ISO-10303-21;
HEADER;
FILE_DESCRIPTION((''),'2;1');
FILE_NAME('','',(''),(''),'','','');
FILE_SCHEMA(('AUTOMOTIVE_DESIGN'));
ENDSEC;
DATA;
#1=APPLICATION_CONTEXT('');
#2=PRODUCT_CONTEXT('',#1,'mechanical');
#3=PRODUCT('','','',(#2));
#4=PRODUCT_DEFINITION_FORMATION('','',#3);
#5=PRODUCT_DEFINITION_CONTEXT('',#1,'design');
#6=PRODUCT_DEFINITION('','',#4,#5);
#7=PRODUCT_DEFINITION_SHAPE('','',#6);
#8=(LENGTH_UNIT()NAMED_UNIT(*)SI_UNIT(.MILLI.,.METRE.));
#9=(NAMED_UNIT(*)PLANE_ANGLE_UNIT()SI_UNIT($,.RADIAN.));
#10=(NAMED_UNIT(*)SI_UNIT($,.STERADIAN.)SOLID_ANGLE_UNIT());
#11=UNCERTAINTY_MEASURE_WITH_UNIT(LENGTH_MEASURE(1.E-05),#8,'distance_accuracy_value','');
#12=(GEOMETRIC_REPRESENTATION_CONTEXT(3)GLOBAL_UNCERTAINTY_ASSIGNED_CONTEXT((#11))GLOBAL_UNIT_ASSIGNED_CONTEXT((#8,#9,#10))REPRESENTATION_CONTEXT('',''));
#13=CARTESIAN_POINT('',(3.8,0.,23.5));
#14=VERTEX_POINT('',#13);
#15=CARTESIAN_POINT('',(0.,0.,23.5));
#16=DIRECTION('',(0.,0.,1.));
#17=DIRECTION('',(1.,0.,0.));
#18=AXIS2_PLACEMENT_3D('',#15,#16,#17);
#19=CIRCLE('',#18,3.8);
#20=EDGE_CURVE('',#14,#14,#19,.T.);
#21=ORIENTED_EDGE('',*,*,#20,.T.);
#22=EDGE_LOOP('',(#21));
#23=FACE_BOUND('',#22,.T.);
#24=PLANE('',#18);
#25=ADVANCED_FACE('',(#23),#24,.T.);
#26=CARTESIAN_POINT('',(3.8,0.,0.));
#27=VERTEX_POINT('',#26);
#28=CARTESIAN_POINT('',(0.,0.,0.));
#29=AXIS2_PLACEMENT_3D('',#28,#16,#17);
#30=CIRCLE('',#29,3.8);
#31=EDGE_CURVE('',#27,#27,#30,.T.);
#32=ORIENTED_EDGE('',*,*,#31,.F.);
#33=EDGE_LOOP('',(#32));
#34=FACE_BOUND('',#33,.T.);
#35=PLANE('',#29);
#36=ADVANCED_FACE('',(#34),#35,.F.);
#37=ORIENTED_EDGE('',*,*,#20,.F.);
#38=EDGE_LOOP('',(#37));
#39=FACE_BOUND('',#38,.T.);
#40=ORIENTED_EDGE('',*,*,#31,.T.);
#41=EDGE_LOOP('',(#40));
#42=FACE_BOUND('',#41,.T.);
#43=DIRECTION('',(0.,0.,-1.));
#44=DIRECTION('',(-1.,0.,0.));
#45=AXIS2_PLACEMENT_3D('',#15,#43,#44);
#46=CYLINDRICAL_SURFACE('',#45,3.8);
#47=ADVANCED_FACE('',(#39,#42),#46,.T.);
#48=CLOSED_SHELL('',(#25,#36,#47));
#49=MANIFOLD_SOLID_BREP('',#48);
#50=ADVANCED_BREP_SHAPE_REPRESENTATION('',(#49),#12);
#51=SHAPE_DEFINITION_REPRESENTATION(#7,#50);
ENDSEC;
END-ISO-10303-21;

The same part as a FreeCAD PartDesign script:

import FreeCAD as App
import Part
import Sketcher

doc = App.newDocument("Part")
body = doc.addObject("PartDesign::Body", "Body")

# Sketch on XY plane
sketch1 = doc.addObject("Sketcher::SketchObject", "Sketch")
body.addObject(sketch1)
sketch1.AttachmentSupport = (doc.XY_Plane, [""])
sketch1.MapMode = "FlatFace"
sketch1.addGeometry(Part.Circle(App.Vector(0, 0, 0), App.Vector(0, 0, 1), 3.8), False)
sketch1.addConstraint([
    Sketcher.Constraint("Coincident", 0, 3, -1, 1),
    Sketcher.Constraint("Diameter", 0, 7.6),
])
pad1 = doc.addObject("PartDesign::Pad", "Pad")
body.addObject(pad1)
pad1.Profile = sketch1
pad1.Length = 23.5

doc.recompute()
